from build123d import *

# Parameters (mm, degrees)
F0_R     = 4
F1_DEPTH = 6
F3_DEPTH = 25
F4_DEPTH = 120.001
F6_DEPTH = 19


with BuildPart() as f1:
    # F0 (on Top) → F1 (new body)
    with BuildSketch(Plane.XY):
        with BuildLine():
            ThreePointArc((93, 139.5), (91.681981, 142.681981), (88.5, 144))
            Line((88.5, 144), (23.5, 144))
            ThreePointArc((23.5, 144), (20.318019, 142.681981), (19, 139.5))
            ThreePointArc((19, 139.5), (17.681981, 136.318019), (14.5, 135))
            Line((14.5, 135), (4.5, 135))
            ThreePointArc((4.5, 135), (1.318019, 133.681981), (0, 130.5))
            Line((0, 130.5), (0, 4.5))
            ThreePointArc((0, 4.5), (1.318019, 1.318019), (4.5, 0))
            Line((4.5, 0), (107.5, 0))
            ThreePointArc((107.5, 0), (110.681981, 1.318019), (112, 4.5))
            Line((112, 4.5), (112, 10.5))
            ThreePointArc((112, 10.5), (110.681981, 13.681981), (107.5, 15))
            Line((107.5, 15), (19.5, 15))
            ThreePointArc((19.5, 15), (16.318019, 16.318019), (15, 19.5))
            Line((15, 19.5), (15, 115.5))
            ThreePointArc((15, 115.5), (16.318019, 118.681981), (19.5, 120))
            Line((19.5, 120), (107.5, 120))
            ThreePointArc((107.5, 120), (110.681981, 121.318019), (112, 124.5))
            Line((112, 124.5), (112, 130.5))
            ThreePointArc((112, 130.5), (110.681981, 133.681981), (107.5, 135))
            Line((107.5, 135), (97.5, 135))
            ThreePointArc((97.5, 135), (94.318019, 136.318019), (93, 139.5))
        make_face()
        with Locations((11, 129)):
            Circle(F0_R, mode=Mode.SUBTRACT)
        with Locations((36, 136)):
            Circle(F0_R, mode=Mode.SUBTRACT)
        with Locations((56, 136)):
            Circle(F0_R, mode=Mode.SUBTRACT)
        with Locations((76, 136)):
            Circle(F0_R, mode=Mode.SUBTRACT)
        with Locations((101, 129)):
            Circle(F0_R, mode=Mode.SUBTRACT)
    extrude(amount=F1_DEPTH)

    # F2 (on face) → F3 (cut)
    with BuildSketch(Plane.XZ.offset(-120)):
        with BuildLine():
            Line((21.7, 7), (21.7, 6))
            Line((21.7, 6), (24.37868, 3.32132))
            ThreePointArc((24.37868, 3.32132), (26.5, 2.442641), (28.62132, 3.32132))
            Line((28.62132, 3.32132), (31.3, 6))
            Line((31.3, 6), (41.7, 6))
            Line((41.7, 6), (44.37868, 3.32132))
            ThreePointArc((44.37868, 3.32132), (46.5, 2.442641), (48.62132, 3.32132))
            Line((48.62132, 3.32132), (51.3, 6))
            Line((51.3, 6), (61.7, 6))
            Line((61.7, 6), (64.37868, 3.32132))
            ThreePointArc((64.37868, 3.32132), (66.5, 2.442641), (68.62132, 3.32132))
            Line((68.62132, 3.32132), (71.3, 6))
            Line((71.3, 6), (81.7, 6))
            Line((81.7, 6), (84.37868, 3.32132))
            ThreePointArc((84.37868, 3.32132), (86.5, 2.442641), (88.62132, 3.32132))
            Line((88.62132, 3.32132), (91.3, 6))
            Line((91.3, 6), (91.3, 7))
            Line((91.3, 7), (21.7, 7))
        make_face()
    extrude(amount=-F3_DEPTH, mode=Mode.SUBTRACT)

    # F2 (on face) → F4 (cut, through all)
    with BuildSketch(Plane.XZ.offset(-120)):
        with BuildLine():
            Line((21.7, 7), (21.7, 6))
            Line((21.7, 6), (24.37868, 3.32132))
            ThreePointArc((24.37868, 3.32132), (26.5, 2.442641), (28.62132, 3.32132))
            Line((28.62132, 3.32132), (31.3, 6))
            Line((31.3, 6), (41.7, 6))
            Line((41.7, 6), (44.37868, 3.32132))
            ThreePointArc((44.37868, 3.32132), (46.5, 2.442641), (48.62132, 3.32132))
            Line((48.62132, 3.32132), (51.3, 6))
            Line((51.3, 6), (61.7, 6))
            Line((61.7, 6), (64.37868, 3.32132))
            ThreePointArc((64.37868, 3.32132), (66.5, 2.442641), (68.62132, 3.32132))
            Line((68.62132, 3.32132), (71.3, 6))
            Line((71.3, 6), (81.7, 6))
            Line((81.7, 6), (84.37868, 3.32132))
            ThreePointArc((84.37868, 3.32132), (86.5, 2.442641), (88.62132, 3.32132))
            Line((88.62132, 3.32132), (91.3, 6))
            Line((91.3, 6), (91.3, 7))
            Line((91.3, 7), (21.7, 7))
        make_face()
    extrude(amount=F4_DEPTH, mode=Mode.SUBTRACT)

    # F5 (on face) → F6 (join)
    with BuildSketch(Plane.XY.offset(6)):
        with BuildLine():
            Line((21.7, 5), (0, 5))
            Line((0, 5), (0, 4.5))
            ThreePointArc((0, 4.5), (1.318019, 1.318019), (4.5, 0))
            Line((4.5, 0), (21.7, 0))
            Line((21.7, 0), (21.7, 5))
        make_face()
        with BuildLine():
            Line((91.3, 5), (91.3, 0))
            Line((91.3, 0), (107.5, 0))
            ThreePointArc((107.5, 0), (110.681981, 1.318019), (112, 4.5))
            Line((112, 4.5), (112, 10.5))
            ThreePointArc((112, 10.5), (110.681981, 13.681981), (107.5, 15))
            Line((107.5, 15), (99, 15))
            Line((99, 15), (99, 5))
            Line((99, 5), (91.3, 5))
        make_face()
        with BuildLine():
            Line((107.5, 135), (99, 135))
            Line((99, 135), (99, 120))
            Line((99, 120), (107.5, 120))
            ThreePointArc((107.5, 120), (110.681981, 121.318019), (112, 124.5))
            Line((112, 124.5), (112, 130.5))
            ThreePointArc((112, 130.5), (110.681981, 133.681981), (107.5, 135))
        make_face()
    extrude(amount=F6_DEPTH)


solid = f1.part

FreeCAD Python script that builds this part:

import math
import FreeCAD as App
import Part
import Sketcher
from FreeCAD import Vector
Q = App.Units.Quantity

doc = App.newDocument("Part")
body = doc.addObject("PartDesign::Body", "Body")

sketch1 = body.newObject("Sketcher::SketchObject", "Sketch")
sketch1.AttachmentSupport = (doc.getObject("XY_Plane"), [""])
sketch1.MapMode = "FlatFace"
sketch1.addGeometry([
    Part.ArcOfCircle(Part.Circle(Vector(88.5, 139.5, 0), Vector(0, 0, 1), 4.5), math.radians(0), math.radians(90)),
    Part.LineSegment(Vector(88.5, 144, 0), Vector(23.5, 144, 0)),
    Part.ArcOfCircle(Part.Circle(Vector(23.5, 139.5, 0), Vector(0, 0, 1), 4.5), math.radians(90), math.radians(180)),
    Part.ArcOfCircle(Part.Circle(Vector(14.5, 139.5, 0), Vector(0, 0, 1), 4.5), math.radians(-90), math.radians(0)),
    Part.LineSegment(Vector(14.5, 135, 0), Vector(4.5, 135, 0)),
    Part.ArcOfCircle(Part.Circle(Vector(4.5, 130.5, 0), Vector(0, 0, 1), 4.5), math.radians(90), math.radians(180)),
    Part.LineSegment(Vector(0, 130.5, 0), Vector(0, 4.5, 0)),
    Part.ArcOfCircle(Part.Circle(Vector(4.5, 4.5, 0), Vector(0, 0, 1), 4.5), math.radians(180), math.radians(270)),
    Part.LineSegment(Vector(4.5, 0, 0), Vector(107.5, 0, 0)),
    Part.ArcOfCircle(Part.Circle(Vector(107.5, 4.5, 0), Vector(0, 0, 1), 4.5), math.radians(-90), math.radians(0)),
    Part.LineSegment(Vector(112, 4.5, 0), Vector(112, 10.5, 0)),
    Part.ArcOfCircle(Part.Circle(Vector(107.5, 10.5, 0), Vector(0, 0, 1), 4.5), math.radians(0), math.radians(90)),
    Part.LineSegment(Vector(107.5, 15, 0), Vector(19.5, 15, 0)),
    Part.ArcOfCircle(Part.Circle(Vector(19.5, 19.5, 0), Vector(0, 0, 1), 4.5), math.radians(180), math.radians(270)),
    Part.LineSegment(Vector(15, 19.5, 0), Vector(15, 115.5, 0)),
    Part.ArcOfCircle(Part.Circle(Vector(19.5, 115.5, 0), Vector(0, 0, 1), 4.5), math.radians(90), math.radians(180)),
    Part.LineSegment(Vector(19.5, 120, 0), Vector(107.5, 120, 0)),
    Part.ArcOfCircle(Part.Circle(Vector(107.5, 124.5, 0), Vector(0, 0, 1), 4.5), math.radians(-90), math.radians(0)),
    Part.LineSegment(Vector(112, 124.5, 0), Vector(112, 130.5, 0)),
    Part.ArcOfCircle(Part.Circle(Vector(107.5, 130.5, 0), Vector(0, 0, 1), 4.5), math.radians(0), math.radians(90)),
    Part.LineSegment(Vector(107.5, 135, 0), Vector(97.5, 135, 0)),
    Part.ArcOfCircle(Part.Circle(Vector(97.5, 139.5, 0), Vector(0, 0, 1), 4.5), math.radians(180), math.radians(270)),
    Part.Circle(Vector(11, 129, 0), Vector(0, 0, 1), 4),
    Part.Circle(Vector(101, 129, 0), Vector(0, 0, 1), 4),
    Part.Circle(Vector(36, 136, 0), Vector(0, 0, 1), 4),
    Part.Circle(Vector(56, 136, 0), Vector(0, 0, 1), 4),
    Part.Circle(Vector(76, 136, 0), Vector(0, 0, 1), 4),
], False)
sketch1.addConstraint([
    Sketcher.Constraint("Tangent", 0, 2, 1, 1),
    Sketcher.Constraint("Tangent", 1, 2, 2, 1),
    Sketcher.Constraint("Tangent", 2, 2, 3, 2),
    Sketcher.Constraint("Tangent", 3, 1, 4, 1),
    Sketcher.Constraint("Tangent", 4, 2, 5, 1),
    Sketcher.Constraint("Tangent", 5, 2, 6, 1),
    Sketcher.Constraint("Tangent", 6, 2, 7, 1),
    Sketcher.Constraint("Tangent", 7, 2, 8, 1),
    Sketcher.Constraint("Tangent", 8, 2, 9, 1),
    Sketcher.Constraint("Tangent", 9, 2, 10, 1),
    Sketcher.Constraint("Tangent", 10, 2, 11, 1),
    Sketcher.Constraint("Tangent", 11, 2, 12, 1),
    Sketcher.Constraint("Tangent", 12, 2, 13, 2),
    Sketcher.Constraint("Tangent", 13, 1, 14, 1),
    Sketcher.Constraint("Tangent", 14, 2, 15, 2),
    Sketcher.Constraint("Tangent", 15, 1, 16, 1),
    Sketcher.Constraint("Tangent", 16, 2, 17, 1),
    Sketcher.Constraint("Tangent", 17, 2, 18, 1),
    Sketcher.Constraint("Tangent", 18, 2, 19, 1),
    Sketcher.Constraint("Tangent", 19, 2, 20, 1),
    Sketcher.Constraint("Tangent", 20, 2, 21, 2),
    Sketcher.Constraint("Tangent", 21, 1, 0, 1),
    Sketcher.Constraint("Horizontal", 1),
    Sketcher.Constraint("Horizontal", 4),
    Sketcher.Constraint("Vertical", 6),
    Sketcher.Constraint("Horizontal", 8),
    Sketcher.Constraint("Vertical", 10),
    Sketcher.Constraint("Horizontal", 12),
    Sketcher.Constraint("Vertical", 14),
    Sketcher.Constraint("Horizontal", 16),
    Sketcher.Constraint("Vertical", 18),
    Sketcher.Constraint("Horizontal", 20),
    Sketcher.Constraint("Equal", 0, 2),
    Sketcher.Constraint("Equal", 2, 3),
    Sketcher.Constraint("Equal", 3, 5),
    Sketcher.Constraint("Equal", 5, 7),
    Sketcher.Constraint("Equal", 7, 9),
    Sketcher.Constraint("Equal", 9, 11),
    Sketcher.Constraint("Equal", 11, 13),
    Sketcher.Constraint("Equal", 13, 15),
    Sketcher.Constraint("Equal", 15, 17),
    Sketcher.Constraint("Equal", 17, 19),
    Sketcher.Constraint("Equal", 19, 21),
    Sketcher.Constraint("Equal", 22, 23),
    Sketcher.Constraint("Equal", 23, 24),
    Sketcher.Constraint("Equal", 24, 25),
    Sketcher.Constraint("Equal", 25, 26),
    Sketcher.Constraint("PointOnObject", 5, 2, -2),
    Sketcher.Constraint("PointOnObject", 7, 2, -1),
    Sketcher.Constraint("Horizontal", 5, 3, 19, 3),
    Sketcher.Constraint("Horizontal", 22, 3, 23, 3),
    Sketcher.Constraint("Horizontal", 24, 3, 25, 3),
    Sketcher.Constraint("Horizontal", 25, 3, 26, 3),
    Sketcher.Constraint("Horizontal", 21, 3, 2, 2),
    Sketcher.Constraint("Vertical", 11, 3, 17, 3),
    Sketcher.Constraint("Equal", 4, 20),
    Sketcher.Constraint("Equal", 10, 18),
    Sketcher.Constraint("Diameter", 22, Q("8 mm")),
    Sketcher.Constraint("Radius", 0, Q("4.499998 mm")),
    Sketcher.Constraint("DistanceX", 1, 2, 1, 1, Q("65 mm")),
    Sketcher.Constraint("DistanceX", 4, 2, 4, 1, Q("10 mm")),
    Sketcher.Constraint("DistanceX", 12, 2, 12, 1, Q("88 mm")),
    Sketcher.Constraint("DistanceY", 6, 2, 6, 1, Q("126 mm")),
    Sketcher.Constraint("DistanceY", 10, 1, 10, 2, Q("6 mm")),
    Sketcher.Constraint("DistanceX", -1, 1, 22, 3, Q("11 mm")),
    Sketcher.Constraint("DistanceY", -1, 1, 22, 3, Q("129 mm")),
    Sketcher.Constraint("DistanceX", -1, 1, 23, 3, Q("101 mm")),
    Sketcher.Constraint("DistanceX", -1, 1, 24, 3, Q("36 mm")),
    Sketcher.Constraint("DistanceY", -1, 1, 24, 3, Q("136 mm")),
    Sketcher.Constraint("DistanceX", -1, 1, 25, 3, Q("56 mm")),
    Sketcher.Constraint("DistanceX", -1, 1, 26, 3, Q("76 mm")),
])
pad1 = body.newObject("PartDesign::Pad", "Pad")
pad1.Profile = sketch1
pad1.Length = 6

sketch2 = body.newObject("Sketcher::SketchObject", "Sketch001")
sketch2.AttachmentSupport = (doc.getObject("XZ_Plane"), [""])
sketch2.MapMode = "FlatFace"
sketch2.AttachmentOffset = App.Placement(Vector(0, 0, -120), App.Rotation())
sketch2.addGeometry([
    Part.LineSegment(Vector(21.7, 7, 0), Vector(21.7, 6, 0)),
    Part.LineSegment(Vector(21.7, 6, 0), Vector(24.4, 3.3, 0)),
    Part.ArcOfCircle(Part.Circle(Vector(26.5, 5.4, 0), Vector(0, 0, 1), 3), math.radians(-135), math.radians(-45)),
    Part.LineSegment(Vector(28.6, 3.3, 0), Vector(31.3, 6, 0)),
    Part.LineSegment(Vector(31.3, 6, 0), Vector(41.7, 6, 0)),
    Part.LineSegment(Vector(41.7, 6, 0), Vector(44.4, 3.3, 0)),
    Part.ArcOfCircle(Part.Circle(Vector(46.5, 5.4, 0), Vector(0, 0, 1), 3), math.radians(-135), math.radians(-45)),
    Part.LineSegment(Vector(48.6, 3.3, 0), Vector(51.3, 6, 0)),
    Part.LineSegment(Vector(51.3, 6, 0), Vector(61.7, 6, 0)),
    Part.LineSegment(Vector(61.7, 6, 0), Vector(64.4, 3.3, 0)),
    Part.ArcOfCircle(Part.Circle(Vector(66.5, 5.4, 0), Vector(0, 0, 1), 3), math.radians(-135), math.radians(-45)),
    Part.LineSegment(Vector(68.6, 3.3, 0), Vector(71.3, 6, 0)),
    Part.LineSegment(Vector(71.3, 6, 0), Vector(81.7, 6, 0)),
    Part.LineSegment(Vector(81.7, 6, 0), Vector(84.4, 3.3, 0)),
    Part.ArcOfCircle(Part.Circle(Vector(86.5, 5.4, 0), Vector(0, 0, 1), 3), math.radians(-135), math.radians(-45)),
    Part.LineSegment(Vector(88.6, 3.3, 0), Vector(91.3, 6, 0)),
    Part.LineSegment(Vector(91.3, 6, 0), Vector(91.3, 7, 0)),
    Part.LineSegment(Vector(91.3, 7, 0), Vector(21.7, 7, 0)),
], False)
sketch2.addConstraint([
    Sketcher.Constraint("Coincident", 0, 2, 1, 1),
    Sketcher.Constraint("Tangent", 1, 2, 2, 1),
    Sketcher.Constraint("Tangent", 2, 2, 3, 1),
    Sketcher.Constraint("Coincident", 3, 2, 4, 1),
    Sketcher.Constraint("Coincident", 4, 2, 5, 1),
    Sketcher.Constraint("Tangent", 5, 2, 6, 1),
    Sketcher.Constraint("Tangent", 6, 2, 7, 1),
    Sketcher.Constraint("Coincident", 7, 2, 8, 1),
    Sketcher.Constraint("Coincident", 8, 2, 9, 1),
    Sketcher.Constraint("Tangent", 9, 2, 10, 1),
    Sketcher.Constraint("Tangent", 10, 2, 11, 1),
    Sketcher.Constraint("Coincident", 11, 2, 12, 1),
    Sketcher.Constraint("Coincident", 12, 2, 13, 1),
    Sketcher.Constraint("Tangent", 13, 2, 14, 1),
    Sketcher.Constraint("Tangent", 14, 2, 15, 1),
    Sketcher.Constraint("Coincident", 15, 2, 16, 1),
    Sketcher.Constraint("Coincident", 16, 2, 17, 1),
    Sketcher.Constraint("Coincident", 17, 2, 0, 1),
    Sketcher.Constraint("Vertical", 0),
    Sketcher.Constraint("Horizontal", 4),
    Sketcher.Constraint("Horizontal", 8),
    Sketcher.Constraint("Horizontal", 12),
    Sketcher.Constraint("Vertical", 16),
    Sketcher.Constraint("Horizontal", 17),
    Sketcher.Constraint("Equal", 2, 6),
    Sketcher.Constraint("Equal", 6, 10),
    Sketcher.Constraint("Equal", 10, 14),
    Sketcher.Constraint("Perpendicular", 1, 3),
    Sketcher.Constraint("Perpendicular", 3, 5),
    Sketcher.Constraint("Perpendicular", 5, 7),
    Sketcher.Constraint("Perpendicular", 7, 9),
    Sketcher.Constraint("Perpendicular", 9, 11),
    Sketcher.Constraint("Perpendicular", 11, 13),
    Sketcher.Constraint("Perpendicular", 13, 15),
    Sketcher.Constraint("Horizontal", 2, 3, 6, 3),
    Sketcher.Constraint("Horizontal", 6, 3, 10, 3),
    Sketcher.Constraint("Horizontal", 10, 3, 14, 3),
    Sketcher.Constraint("Horizontal", 1, 2, 2, 2),
    Sketcher.Constraint("Horizontal", 0, 2, 3, 2),
    Sketcher.Constraint("Horizontal", 4, 2, 7, 2),
    Sketcher.Constraint("Horizontal", 8, 2, 11, 2),
    Sketcher.Constraint("Horizontal", 12, 2, 15, 2),
    Sketcher.Constraint("Equal", 4, 8),
    Sketcher.Constraint("Equal", 8, 12),
    Sketcher.Constraint("Radius", 2, Q("3.000001 mm")),
    Sketcher.Constraint("DistanceY", 0, 2, 0, 1, Q("1 mm")),
    Sketcher.Constraint("DistanceX", 4, 1, 4, 2, Q("10.4 mm")),
    Sketcher.Constraint("DistanceX", 17, 2, 17, 1, Q("69.6 mm")),
    Sketcher.Constraint("DistanceY", -1, 1, 0, 2, Q("6 mm")),
    Sketcher.Constraint("DistanceX", -1, 1, 2, 3, Q("26.5 mm")),
])
pocket1 = body.newObject("PartDesign::Pocket", "Pocket")
pocket1.Profile = sketch2
pocket1.Length = 25

sketch3 = body.newObject("Sketcher::SketchObject", "Sketch002")
sketch3.AttachmentSupport = (doc.getObject("XZ_Plane"), [""])
sketch3.MapMode = "FlatFace"
sketch3.AttachmentOffset = App.Placement(Vector(0, 0, -120), App.Rotation())
sketch3.addGeometry([
    Part.LineSegment(Vector(21.7, 7, 0), Vector(21.7, 6, 0)),
    Part.LineSegment(Vector(21.7, 6, 0), Vector(24.4, 3.3, 0)),
    Part.ArcOfCircle(Part.Circle(Vector(26.5, 5.4, 0), Vector(0, 0, 1), 3), math.radians(-135), math.radians(-45)),
    Part.LineSegment(Vector(28.6, 3.3, 0), Vector(31.3, 6, 0)),
    Part.LineSegment(Vector(31.3, 6, 0), Vector(41.7, 6, 0)),
    Part.LineSegment(Vector(41.7, 6, 0), Vector(44.4, 3.3, 0)),
    Part.ArcOfCircle(Part.Circle(Vector(46.5, 5.4, 0), Vector(0, 0, 1), 3), math.radians(-135), math.radians(-45)),
    Part.LineSegment(Vector(48.6, 3.3, 0), Vector(51.3, 6, 0)),
    Part.LineSegment(Vector(51.3, 6, 0), Vector(61.7, 6, 0)),
    Part.LineSegment(Vector(61.7, 6, 0), Vector(64.4, 3.3, 0)),
    Part.ArcOfCircle(Part.Circle(Vector(66.5, 5.4, 0), Vector(0, 0, 1), 3), math.radians(-135), math.radians(-45)),
    Part.LineSegment(Vector(68.6, 3.3, 0), Vector(71.3, 6, 0)),
    Part.LineSegment(Vector(71.3, 6, 0), Vector(81.7, 6, 0)),
    Part.LineSegment(Vector(81.7, 6, 0), Vector(84.4, 3.3, 0)),
    Part.ArcOfCircle(Part.Circle(Vector(86.5, 5.4, 0), Vector(0, 0, 1), 3), math.radians(-135), math.radians(-45)),
    Part.LineSegment(Vector(88.6, 3.3, 0), Vector(91.3, 6, 0)),
    Part.LineSegment(Vector(91.3, 6, 0), Vector(91.3, 7, 0)),
    Part.LineSegment(Vector(91.3, 7, 0), Vector(21.7, 7, 0)),
], False)
sketch3.addConstraint([
    Sketcher.Constraint("Coincident", 0, 2, 1, 1),
    Sketcher.Constraint("Tangent", 1, 2, 2, 1),
    Sketcher.Constraint("Tangent", 2, 2, 3, 1),
    Sketcher.Constraint("Coincident", 3, 2, 4, 1),
    Sketcher.Constraint("Coincident", 4, 2, 5, 1),
    Sketcher.Constraint("Tangent", 5, 2, 6, 1),
    Sketcher.Constraint("Tangent", 6, 2, 7, 1),
    Sketcher.Constraint("Coincident", 7, 2, 8, 1),
    Sketcher.Constraint("Coincident", 8, 2, 9, 1),
    Sketcher.Constraint("Tangent", 9, 2, 10, 1),
    Sketcher.Constraint("Tangent", 10, 2, 11, 1),
    Sketcher.Constraint("Coincident", 11, 2, 12, 1),
    Sketcher.Constraint("Coincident", 12, 2, 13, 1),
    Sketcher.Constraint("Tangent", 13, 2, 14, 1),
    Sketcher.Constraint("Tangent", 14, 2, 15, 1),
    Sketcher.Constraint("Coincident", 15, 2, 16, 1),
    Sketcher.Constraint("Coincident", 16, 2, 17, 1),
    Sketcher.Constraint("Coincident", 17, 2, 0, 1),
    Sketcher.Constraint("Vertical", 0),
    Sketcher.Constraint("Horizontal", 4),
    Sketcher.Constraint("Horizontal", 8),
    Sketcher.Constraint("Horizontal", 12),
    Sketcher.Constraint("Vertical", 16),
    Sketcher.Constraint("Horizontal", 17),
    Sketcher.Constraint("Equal", 2, 6),
    Sketcher.Constraint("Equal", 6, 10),
    Sketcher.Constraint("Equal", 10, 14),
    Sketcher.Constraint("Perpendicular", 1, 3),
    Sketcher.Constraint("Perpendicular", 3, 5),
    Sketcher.Constraint("Perpendicular", 5, 7),
    Sketcher.Constraint("Perpendicular", 7, 9),
    Sketcher.Constraint("Perpendicular", 9, 11),
    Sketcher.Constraint("Perpendicular", 11, 13),
    Sketcher.Constraint("Perpendicular", 13, 15),
    Sketcher.Constraint("Horizontal", 2, 3, 6, 3),
    Sketcher.Constraint("Horizontal", 6, 3, 10, 3),
    Sketcher.Constraint("Horizontal", 10, 3, 14, 3),
    Sketcher.Constraint("Horizontal", 1, 2, 2, 2),
    Sketcher.Constraint("Horizontal", 0, 2, 3, 2),
    Sketcher.Constraint("Horizontal", 4, 2, 7, 2),
    Sketcher.Constraint("Horizontal", 8, 2, 11, 2),
    Sketcher.Constraint("Horizontal", 12, 2, 15, 2),
    Sketcher.Constraint("Equal", 4, 8),
    Sketcher.Constraint("Equal", 8, 12),
    Sketcher.Constraint("Radius", 2, Q("3.000001 mm")),
    Sketcher.Constraint("DistanceY", 0, 2, 0, 1, Q("1 mm")),
    Sketcher.Constraint("DistanceX", 4, 1, 4, 2, Q("10.4 mm")),
    Sketcher.Constraint("DistanceX", 17, 2, 17, 1, Q("69.6 mm")),
    Sketcher.Constraint("DistanceY", -1, 1, 0, 2, Q("6 mm")),
    Sketcher.Constraint("DistanceX", -1, 1, 2, 3, Q("26.5 mm")),
])
pocket2 = body.newObject("PartDesign::Pocket", "Pocket001")
pocket2.Profile = sketch3
pocket2.Type = "ThroughAll"
pocket2.Reversed = True

sketch4 = body.newObject("Sketcher::SketchObject", "Sketch003")
sketch4.AttachmentSupport = (doc.getObject("XY_Plane"), [""])
sketch4.MapMode = "FlatFace"
sketch4.AttachmentOffset = App.Placement(Vector(0, 0, 6), App.Rotation())
sketch4.addGeometry([
    Part.LineSegment(Vector(21.7, 5, 0), Vector(0, 5, 0)),
    Part.LineSegment(Vector(0, 5, 0), Vector(0, 4.5, 0)),
    Part.ArcOfCircle(Part.Circle(Vector(4.5, 4.5, 0), Vector(0, 0, 1), 4.5), math.radians(180), math.radians(270)),
    Part.LineSegment(Vector(4.5, 0, 0), Vector(21.7, 0, 0)),
    Part.LineSegment(Vector(21.7, 0, 0), Vector(21.7, 5, 0)),
    Part.LineSegment(Vector(91.3, 5, 0), Vector(91.3, 0, 0)),
    Part.LineSegment(Vector(91.3, 0, 0), Vector(107.5, 0, 0)),
    Part.ArcOfCircle(Part.Circle(Vector(107.5, 4.5, 0), Vector(0, 0, 1), 4.5), math.radians(-90), math.radians(0)),
    Part.LineSegment(Vector(112, 4.5, 0), Vector(112, 10.5, 0)),
    Part.ArcOfCircle(Part.Circle(Vector(107.5, 10.5, 0), Vector(0, 0, 1), 4.5), math.radians(0), math.radians(90)),
    Part.LineSegment(Vector(107.5, 15, 0), Vector(99, 15, 0)),
    Part.LineSegment(Vector(99, 15, 0), Vector(99, 5, 0)),
    Part.LineSegment(Vector(99, 5, 0), Vector(91.3, 5, 0)),
    Part.LineSegment(Vector(107.5, 135, 0), Vector(99, 135, 0)),
    Part.LineSegment(Vector(99, 135, 0), Vector(99, 120, 0)),
    Part.LineSegment(Vector(99, 120, 0), Vector(107.5, 120, 0)),
    Part.ArcOfCircle(Part.Circle(Vector(107.5, 124.5, 0), Vector(0, 0, 1), 4.5), math.radians(-90), math.radians(0)),
    Part.LineSegment(Vector(112, 124.5, 0), Vector(112, 130.5, 0)),
    Part.ArcOfCircle(Part.Circle(Vector(107.5, 130.5, 0), Vector(0, 0, 1), 4.5), math.radians(0), math.radians(90)),
], False)
sketch4.addConstraint([
    Sketcher.Constraint("Coincident", 0, 2, 1, 1),
    Sketcher.Constraint("Tangent", 1, 2, 2, 1),
    Sketcher.Constraint("Tangent", 2, 2, 3, 1),
    Sketcher.Constraint("Coincident", 3, 2, 4, 1),
    Sketcher.Constraint("Coincident", 4, 2, 0, 1),
    Sketcher.Constraint("Coincident", 5, 2, 6, 1),
    Sketcher.Constraint("Tangent", 6, 2, 7, 1),
    Sketcher.Constraint("Tangent", 7, 2, 8, 1),
    Sketcher.Constraint("Tangent", 8, 2, 9, 1),
    Sketcher.Constraint("Tangent", 9, 2, 10, 1),
    Sketcher.Constraint("Coincident", 10, 2, 11, 1),
    Sketcher.Constraint("Coincident", 11, 2, 12, 1),
    Sketcher.Constraint("Coincident", 12, 2, 5, 1),
    Sketcher.Constraint("Coincident", 13, 2, 14, 1),
    Sketcher.Constraint("Coincident", 14, 2, 15, 1),
    Sketcher.Constraint("Tangent", 15, 2, 16, 1),
    Sketcher.Constraint("Tangent", 16, 2, 17, 1),
    Sketcher.Constraint("Tangent", 17, 2, 18, 1),
    Sketcher.Constraint("Tangent", 18, 2, 13, 1),
    Sketcher.Constraint("Horizontal", 0),
    Sketcher.Constraint("Vertical", 1),
    Sketcher.Constraint("Horizontal", 3),
    Sketcher.Constraint("Vertical", 4),
    Sketcher.Constraint("Vertical", 5),
    Sketcher.Constraint("Horizontal", 6),
    Sketcher.Constraint("Vertical", 8),
    Sketcher.Constraint("Horizontal", 10),
    Sketcher.Constraint("Vertical", 11),
    Sketcher.Constraint("Horizontal", 12),
    Sketcher.Constraint("Horizontal", 13),
    Sketcher.Constraint("Vertical", 14),
    Sketcher.Constraint("Horizontal", 15),
    Sketcher.Constraint("Vertical", 17),
    Sketcher.Constraint("Equal", 2, 7),
    Sketcher.Constraint("Equal", 7, 9),
    Sketcher.Constraint("Equal", 9, 16),
    Sketcher.Constraint("Equal", 16, 18),
    Sketcher.Constraint("PointOnObject", 0, 2, -2),
    Sketcher.Constraint("PointOnObject", 2, 2, -1),
    Sketcher.Constraint("PointOnObject", 5, 2, -1),
    Sketcher.Constraint("Horizontal", 4, 2, 11, 2),
    Sketcher.Constraint("Vertical", 9, 3, 16, 3),
    Sketcher.Constraint("Vertical", 11, 2, 13, 2),
    Sketcher.Constraint("Equal", 8, 17),
    Sketcher.Constraint("Radius", 2, Q("4.499998 mm")),
    Sketcher.Constraint("DistanceY", 4, 1, 4, 2, Q("5 mm")),
    Sketcher.Constraint("DistanceY", 8, 1, 8, 2, Q("6 mm")),
    Sketcher.Constraint("DistanceX", 0, 2, 0, 1, Q("21.7 mm")),
    Sketcher.Constraint("DistanceX", 6, 1, 6, 2, Q("16.2 mm")),
    Sketcher.Constraint("DistanceX", 10, 2, 10, 1, Q("8.5 mm")),
    Sketcher.Constraint("DistanceX", -1, 1, 7, 2, Q("112 mm")),
    Sketcher.Constraint("DistanceY", -1, 1, 13, 2, Q("135 mm")),
])
pad2 = body.newObject("PartDesign::Pad", "Pad001")
pad2.Profile = sketch4
pad2.Length = 19

doc.recompute()
